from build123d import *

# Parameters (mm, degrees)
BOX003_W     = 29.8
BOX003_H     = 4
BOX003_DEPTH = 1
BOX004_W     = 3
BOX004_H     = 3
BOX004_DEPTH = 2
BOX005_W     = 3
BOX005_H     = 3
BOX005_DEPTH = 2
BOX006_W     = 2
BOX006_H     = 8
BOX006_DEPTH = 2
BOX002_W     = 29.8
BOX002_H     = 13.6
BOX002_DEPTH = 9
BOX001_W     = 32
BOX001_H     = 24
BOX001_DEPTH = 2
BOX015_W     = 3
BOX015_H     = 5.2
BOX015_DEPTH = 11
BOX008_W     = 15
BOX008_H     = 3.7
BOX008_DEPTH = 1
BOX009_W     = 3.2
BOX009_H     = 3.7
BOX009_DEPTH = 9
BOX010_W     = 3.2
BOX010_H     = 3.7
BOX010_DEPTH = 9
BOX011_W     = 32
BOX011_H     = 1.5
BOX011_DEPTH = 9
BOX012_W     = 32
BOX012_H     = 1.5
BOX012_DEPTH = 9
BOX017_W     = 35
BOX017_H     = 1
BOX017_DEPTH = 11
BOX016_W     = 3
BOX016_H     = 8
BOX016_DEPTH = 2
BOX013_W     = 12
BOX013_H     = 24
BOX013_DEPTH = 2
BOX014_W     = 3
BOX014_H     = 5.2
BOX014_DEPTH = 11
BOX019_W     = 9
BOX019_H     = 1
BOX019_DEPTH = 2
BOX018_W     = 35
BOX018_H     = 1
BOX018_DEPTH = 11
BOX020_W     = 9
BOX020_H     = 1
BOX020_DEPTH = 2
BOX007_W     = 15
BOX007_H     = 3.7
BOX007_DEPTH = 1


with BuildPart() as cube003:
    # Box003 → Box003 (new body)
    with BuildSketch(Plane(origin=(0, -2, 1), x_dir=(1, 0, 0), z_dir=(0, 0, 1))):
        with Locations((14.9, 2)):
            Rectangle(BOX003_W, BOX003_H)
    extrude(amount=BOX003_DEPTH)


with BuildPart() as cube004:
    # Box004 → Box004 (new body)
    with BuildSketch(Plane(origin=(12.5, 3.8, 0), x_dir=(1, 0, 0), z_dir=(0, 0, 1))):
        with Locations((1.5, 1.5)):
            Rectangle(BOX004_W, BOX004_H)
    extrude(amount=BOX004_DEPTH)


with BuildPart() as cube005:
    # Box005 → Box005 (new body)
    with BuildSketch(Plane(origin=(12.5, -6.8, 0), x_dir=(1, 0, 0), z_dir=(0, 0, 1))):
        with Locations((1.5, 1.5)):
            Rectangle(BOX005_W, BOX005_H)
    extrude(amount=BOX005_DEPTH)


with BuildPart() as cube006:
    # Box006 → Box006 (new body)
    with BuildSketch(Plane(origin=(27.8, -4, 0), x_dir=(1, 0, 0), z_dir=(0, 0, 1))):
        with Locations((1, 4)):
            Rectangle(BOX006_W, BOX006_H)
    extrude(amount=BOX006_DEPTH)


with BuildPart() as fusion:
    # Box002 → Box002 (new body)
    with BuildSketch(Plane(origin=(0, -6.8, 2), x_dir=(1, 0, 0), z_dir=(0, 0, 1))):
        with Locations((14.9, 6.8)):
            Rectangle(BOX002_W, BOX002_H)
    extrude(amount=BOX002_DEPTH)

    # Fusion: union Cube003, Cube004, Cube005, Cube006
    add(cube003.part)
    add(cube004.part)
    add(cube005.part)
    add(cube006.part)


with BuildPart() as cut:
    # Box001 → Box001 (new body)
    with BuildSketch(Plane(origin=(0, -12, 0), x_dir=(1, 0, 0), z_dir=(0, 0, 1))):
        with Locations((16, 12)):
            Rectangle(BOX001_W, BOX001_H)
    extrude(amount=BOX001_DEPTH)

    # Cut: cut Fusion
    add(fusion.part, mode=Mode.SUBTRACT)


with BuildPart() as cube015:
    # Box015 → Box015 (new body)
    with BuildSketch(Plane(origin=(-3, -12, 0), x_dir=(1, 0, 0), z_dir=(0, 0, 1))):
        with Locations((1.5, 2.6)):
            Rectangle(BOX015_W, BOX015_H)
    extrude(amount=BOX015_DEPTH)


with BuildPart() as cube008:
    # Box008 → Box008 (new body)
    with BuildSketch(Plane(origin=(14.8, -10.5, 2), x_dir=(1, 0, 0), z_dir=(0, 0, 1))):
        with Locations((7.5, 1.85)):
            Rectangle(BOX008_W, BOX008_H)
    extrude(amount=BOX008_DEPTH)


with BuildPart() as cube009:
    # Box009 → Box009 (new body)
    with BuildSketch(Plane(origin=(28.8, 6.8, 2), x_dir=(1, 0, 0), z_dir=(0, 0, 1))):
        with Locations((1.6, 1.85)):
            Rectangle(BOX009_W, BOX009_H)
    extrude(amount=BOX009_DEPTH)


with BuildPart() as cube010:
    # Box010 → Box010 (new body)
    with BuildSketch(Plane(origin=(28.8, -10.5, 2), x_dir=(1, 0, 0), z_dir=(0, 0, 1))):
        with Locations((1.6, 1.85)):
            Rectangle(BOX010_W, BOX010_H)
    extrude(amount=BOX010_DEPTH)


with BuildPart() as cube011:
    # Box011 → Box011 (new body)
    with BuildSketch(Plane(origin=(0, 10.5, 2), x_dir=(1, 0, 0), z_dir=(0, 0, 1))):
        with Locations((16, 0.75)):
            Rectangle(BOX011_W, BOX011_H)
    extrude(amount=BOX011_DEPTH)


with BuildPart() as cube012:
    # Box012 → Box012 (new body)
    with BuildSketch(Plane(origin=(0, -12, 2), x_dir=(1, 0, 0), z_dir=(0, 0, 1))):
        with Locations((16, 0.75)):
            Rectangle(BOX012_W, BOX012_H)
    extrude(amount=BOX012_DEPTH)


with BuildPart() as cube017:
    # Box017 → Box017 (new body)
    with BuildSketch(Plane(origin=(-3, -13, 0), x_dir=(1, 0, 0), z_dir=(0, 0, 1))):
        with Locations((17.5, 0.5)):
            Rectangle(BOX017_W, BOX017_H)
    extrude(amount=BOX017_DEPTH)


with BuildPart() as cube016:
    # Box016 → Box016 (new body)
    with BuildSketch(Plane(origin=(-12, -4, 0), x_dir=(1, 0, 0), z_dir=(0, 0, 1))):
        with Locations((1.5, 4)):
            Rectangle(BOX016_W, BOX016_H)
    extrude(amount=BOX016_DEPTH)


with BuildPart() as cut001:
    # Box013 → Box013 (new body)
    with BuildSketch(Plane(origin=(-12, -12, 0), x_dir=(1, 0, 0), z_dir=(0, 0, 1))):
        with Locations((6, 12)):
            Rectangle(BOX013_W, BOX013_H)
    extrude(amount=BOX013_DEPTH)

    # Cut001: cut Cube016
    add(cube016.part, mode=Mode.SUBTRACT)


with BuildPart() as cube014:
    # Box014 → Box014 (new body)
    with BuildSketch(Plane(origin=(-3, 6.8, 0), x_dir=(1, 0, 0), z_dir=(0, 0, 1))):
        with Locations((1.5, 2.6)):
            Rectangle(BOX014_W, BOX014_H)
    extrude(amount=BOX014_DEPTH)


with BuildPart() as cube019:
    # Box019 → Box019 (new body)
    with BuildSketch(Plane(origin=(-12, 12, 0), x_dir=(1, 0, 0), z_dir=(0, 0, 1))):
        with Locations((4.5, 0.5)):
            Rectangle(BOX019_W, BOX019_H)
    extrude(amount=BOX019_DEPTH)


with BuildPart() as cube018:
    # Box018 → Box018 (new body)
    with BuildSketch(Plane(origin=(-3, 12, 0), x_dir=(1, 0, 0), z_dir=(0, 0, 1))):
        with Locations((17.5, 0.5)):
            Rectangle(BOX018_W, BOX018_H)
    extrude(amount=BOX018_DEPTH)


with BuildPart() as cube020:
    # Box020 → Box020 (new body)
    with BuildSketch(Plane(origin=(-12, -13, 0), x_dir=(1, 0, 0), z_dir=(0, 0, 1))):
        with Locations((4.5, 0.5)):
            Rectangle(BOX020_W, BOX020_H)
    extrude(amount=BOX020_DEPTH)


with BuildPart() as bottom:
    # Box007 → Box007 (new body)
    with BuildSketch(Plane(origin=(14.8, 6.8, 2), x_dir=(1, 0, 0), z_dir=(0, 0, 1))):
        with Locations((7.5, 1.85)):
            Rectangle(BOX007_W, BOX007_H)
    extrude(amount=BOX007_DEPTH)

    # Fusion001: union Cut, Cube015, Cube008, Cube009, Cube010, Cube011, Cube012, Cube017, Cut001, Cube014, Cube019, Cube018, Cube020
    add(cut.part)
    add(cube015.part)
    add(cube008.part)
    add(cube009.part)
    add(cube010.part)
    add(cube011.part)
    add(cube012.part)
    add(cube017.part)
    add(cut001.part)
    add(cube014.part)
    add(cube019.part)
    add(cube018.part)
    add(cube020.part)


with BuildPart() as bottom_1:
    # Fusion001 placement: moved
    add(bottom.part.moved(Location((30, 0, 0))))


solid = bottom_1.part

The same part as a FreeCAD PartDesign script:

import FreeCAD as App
import Part
import Sketcher

V = App.Vector

doc = App.newDocument("Part")
body = doc.addObject("PartDesign::Body", "Body")

sketch1 = doc.addObject("Sketcher::SketchObject", "Sketch")
body.addObject(sketch1)
sketch1.AttachmentSupport = (doc.XY_Plane, [""])
sketch1.MapMode = "FlatFace"
sketch1.AttachmentOffset = App.Placement(V(0, 0, 1), App.Rotation())
sketch1.addGeometry([
    Part.LineSegment(V(0, 2, 0), V(0, -2, 0)),
    Part.LineSegment(V(0, -2, 0), V(29.8, -2, 0)),
    Part.LineSegment(V(29.8, -2, 0), V(29.8, 2, 0)),
    Part.LineSegment(V(29.8, 2, 0), V(0, 2, 0)),
], False)
sketch1.addConstraint([
    Sketcher.Constraint("Coincident", 0, 2, 1, 1),
    Sketcher.Constraint("Coincident", 1, 2, 2, 1),
    Sketcher.Constraint("Coincident", 2, 2, 3, 1),
    Sketcher.Constraint("Coincident", 3, 2, 0, 1),
    Sketcher.Constraint("Vertical", 0),
    Sketcher.Constraint("Horizontal", 1),
    Sketcher.Constraint("Vertical", 2),
    Sketcher.Constraint("Horizontal", 3),
    Sketcher.Constraint("Symmetric", 0, 2, 3, 2, -1, 1),
    Sketcher.Constraint("DistanceY", 0, 2, 0, 1, 4.0),
    Sketcher.Constraint("DistanceX", 1, 1, 1, 2, 29.8),
])
pad1 = doc.addObject("PartDesign::Pad", "Pad")
body.addObject(pad1)
pad1.Profile = sketch1
pad1.Length = 1
body2 = doc.addObject("PartDesign::Body", "Body001")

sketch2 = doc.addObject("Sketcher::SketchObject", "Sketch001")
body2.addObject(sketch2)
sketch2.AttachmentSupport = (doc.getObject("XY_Plane001"), [""])
sketch2.MapMode = "FlatFace"
sketch2.addGeometry([
    Part.LineSegment(V(12.5, 6.8, 0), V(12.5, 3.8, 0)),
    Part.LineSegment(V(12.5, 3.8, 0), V(15.5, 3.8, 0)),
    Part.LineSegment(V(15.5, 3.8, 0), V(15.5, 6.8, 0)),
    Part.LineSegment(V(15.5, 6.8, 0), V(12.5, 6.8, 0)),
], False)
sketch2.addConstraint([
    Sketcher.Constraint("Coincident", 0, 2, 1, 1),
    Sketcher.Constraint("Coincident", 1, 2, 2, 1),
    Sketcher.Constraint("Coincident", 2, 2, 3, 1),
    Sketcher.Constraint("Coincident", 3, 2, 0, 1),
    Sketcher.Constraint("Vertical", 0),
    Sketcher.Constraint("Horizontal", 1),
    Sketcher.Constraint("Vertical", 2),
    Sketcher.Constraint("Horizontal", 3),
    Sketcher.Constraint("Equal", 3, 0),
    Sketcher.Constraint("DistanceX", 1, 1, 1, 2, 3.0),
    Sketcher.Constraint("DistanceX", -1, 1, 0, 2, 12.5),
    Sketcher.Constraint("DistanceY", -1, 1, 0, 2, 3.8),
])
pad2 = doc.addObject("PartDesign::Pad", "Pad001")
body2.addObject(pad2)
pad2.Profile = sketch2
pad2.Length = 2
body3 = doc.addObject("PartDesign::Body", "Body002")

sketch3 = doc.addObject("Sketcher::SketchObject", "Sketch002")
body3.addObject(sketch3)
sketch3.AttachmentSupport = (doc.getObject("XY_Plane002"), [""])
sketch3.MapMode = "FlatFace"
sketch3.addGeometry([
    Part.LineSegment(V(12.5, -3.8, 0), V(12.5, -6.8, 0)),
    Part.LineSegment(V(12.5, -6.8, 0), V(15.5, -6.8, 0)),
    Part.LineSegment(V(15.5, -6.8, 0), V(15.5, -3.8, 0)),
    Part.LineSegment(V(15.5, -3.8, 0), V(12.5, -3.8, 0)),
], False)
sketch3.addConstraint([
    Sketcher.Constraint("Coincident", 0, 2, 1, 1),
    Sketcher.Constraint("Coincident", 1, 2, 2, 1),
    Sketcher.Constraint("Coincident", 2, 2, 3, 1),
    Sketcher.Constraint("Coincident", 3, 2, 0, 1),
    Sketcher.Constraint("Vertical", 0),
    Sketcher.Constraint("Horizontal", 1),
    Sketcher.Constraint("Vertical", 2),
    Sketcher.Constraint("Horizontal", 3),
    Sketcher.Constraint("Equal", 3, 0),
    Sketcher.Constraint("DistanceX", 1, 1, 1, 2, 3.0),
    Sketcher.Constraint("DistanceX", -1, 1, 0, 2, 12.5),
    Sketcher.Constraint("DistanceY", 0, 2, -1, 1, 6.8),
])
pad3 = doc.addObject("PartDesign::Pad", "Pad002")
body3.addObject(pad3)
pad3.Profile = sketch3
pad3.Length = 2
body4 = doc.addObject("PartDesign::Body", "Body003")

sketch4 = doc.addObject("Sketcher::SketchObject", "Sketch003")
body4.addObject(sketch4)
sketch4.AttachmentSupport = (doc.getObject("XY_Plane003"), [""])
sketch4.MapMode = "FlatFace"
sketch4.addGeometry([
    Part.LineSegment(V(27.8, 4, 0), V(27.8, -4, 0)),
    Part.LineSegment(V(27.8, -4, 0), V(29.8, -4, 0)),
    Part.LineSegment(V(29.8, -4, 0), V(29.8, 4, 0)),
    Part.LineSegment(V(29.8, 4, 0), V(27.8, 4, 0)),
], False)
sketch4.addConstraint([
    Sketcher.Constraint("Coincident", 0, 2, 1, 1),
    Sketcher.Constraint("Coincident", 1, 2, 2, 1),
    Sketcher.Constraint("Coincident", 2, 2, 3, 1),
    Sketcher.Constraint("Coincident", 3, 2, 0, 1),
    Sketcher.Constraint("Vertical", 0),
    Sketcher.Constraint("Horizontal", 1),
    Sketcher.Constraint("Vertical", 2),
    Sketcher.Constraint("Horizontal", 3),
    Sketcher.Constraint("DistanceX", 1, 1, 1, 2, 2.0),
    Sketcher.Constraint("DistanceY", 0, 2, 0, 1, 8.0),
    Sketcher.Constraint("DistanceY", 0, 2, -1, 1, 4.0),
    Sketcher.Constraint("DistanceX", -1, 1, 0, 2, 27.8),
])
pad4 = doc.addObject("PartDesign::Pad", "Pad003")
body4.addObject(pad4)
pad4.Profile = sketch4
pad4.Length = 2
body5 = doc.addObject("PartDesign::Body", "Body004")

sketch5 = doc.addObject("Sketcher::SketchObject", "Sketch004")
body5.addObject(sketch5)
sketch5.AttachmentSupport = (doc.getObject("XY_Plane004"), [""])
sketch5.MapMode = "FlatFace"
sketch5.AttachmentOffset = App.Placement(V(0, 0, 2), App.Rotation())
sketch5.addGeometry([
    Part.LineSegment(V(0, 6.8, 0), V(0, -6.8, 0)),
    Part.LineSegment(V(0, -6.8, 0), V(29.8, -6.8, 0)),
    Part.LineSegment(V(29.8, -6.8, 0), V(29.8, 6.8, 0)),
    Part.LineSegment(V(29.8, 6.8, 0), V(0, 6.8, 0)),
], False)
sketch5.addConstraint([
    Sketcher.Constraint("Coincident", 0, 2, 1, 1),
    Sketcher.Constraint("Coincident", 1, 2, 2, 1),
    Sketcher.Constraint("Coincident", 2, 2, 3, 1),
    Sketcher.Constraint("Coincident", 3, 2, 0, 1),
    Sketcher.Constraint("Vertical", 0),
    Sketcher.Constraint("Horizontal", 1),
    Sketcher.Constraint("Vertical", 2),
    Sketcher.Constraint("Horizontal", 3),
    Sketcher.Constraint("Symmetric", 0, 2, 3, 2, -1, 1),
    Sketcher.Constraint("DistanceX", 1, 1, 1, 2, 29.8),
    Sketcher.Constraint("DistanceY", 0, 2, 0, 1, 13.6),
])
pad5 = doc.addObject("PartDesign::Pad", "Pad004")
body5.addObject(pad5)
pad5.Profile = sketch5
pad5.Length = 9
doc.recompute()

boolean = doc.addObject("PartDesign::Boolean", "Boolean")
body5.addObject(boolean)
boolean.Type = "Fuse"
boolean.addObjects([body])
doc.recompute()

boolean2 = doc.addObject("PartDesign::Boolean", "Boolean001")
body5.addObject(boolean2)
boolean2.Type = "Fuse"
boolean2.addObjects([body2])
doc.recompute()

boolean3 = doc.addObject("PartDesign::Boolean", "Boolean002")
body5.addObject(boolean3)
boolean3.Type = "Fuse"
boolean3.addObjects([body3])
doc.recompute()

boolean4 = doc.addObject("PartDesign::Boolean", "Boolean003")
body5.addObject(boolean4)
boolean4.Type = "Fuse"
boolean4.addObjects([body4])
body6 = doc.addObject("PartDesign::Body", "Body005")

sketch6 = doc.addObject("Sketcher::SketchObject", "Sketch005")
body6.addObject(sketch6)
sketch6.AttachmentSupport = (doc.getObject("XY_Plane005"), [""])
sketch6.MapMode = "FlatFace"
sketch6.addGeometry([
    Part.LineSegment(V(0, 12, 0), V(0, -12, 0)),
    Part.LineSegment(V(0, -12, 0), V(32, -12, 0)),
    Part.LineSegment(V(32, -12, 0), V(32, 12, 0)),
    Part.LineSegment(V(32, 12, 0), V(0, 12, 0)),
], False)
sketch6.addConstraint([
    Sketcher.Constraint("Coincident", 0, 2, 1, 1),
    Sketcher.Constraint("Coincident", 1, 2, 2, 1),
    Sketcher.Constraint("Coincident", 2, 2, 3, 1),
    Sketcher.Constraint("Coincident", 3, 2, 0, 1),
    Sketcher.Constraint("Vertical", 0),
    Sketcher.Constraint("Horizontal", 1),
    Sketcher.Constraint("Vertical", 2),
    Sketcher.Constraint("Horizontal", 3),
    Sketcher.Constraint("Symmetric", 0, 2, 3, 2, -1, 1),
    Sketcher.Constraint("DistanceX", 1, 1, 1, 2, 32.0),
    Sketcher.Constraint("DistanceY", 0, 2, 0, 1, 24.0),
])
pad6 = doc.addObject("PartDesign::Pad", "Pad005")
body6.addObject(pad6)
pad6.Profile = sketch6
pad6.Length = 2
doc.recompute()

boolean5 = doc.addObject("PartDesign::Boolean", "Boolean004")
body6.addObject(boolean5)
boolean5.Type = "Cut"
boolean5.addObjects([body5])
body7 = doc.addObject("PartDesign::Body", "Body006")

sketch7 = doc.addObject("Sketcher::SketchObject", "Sketch006")
body7.addObject(sketch7)
sketch7.AttachmentSupport = (doc.getObject("XY_Plane006"), [""])
sketch7.MapMode = "FlatFace"
sketch7.addGeometry([
    Part.LineSegment(V(-3, -6.8, 0), V(-3, -12, 0)),
    Part.LineSegment(V(-3, -12, 0), V(0, -12, 0)),
    Part.LineSegment(V(0, -12, 0), V(0, -6.8, 0)),
    Part.LineSegment(V(0, -6.8, 0), V(-3, -6.8, 0)),
], False)
sketch7.addConstraint([
    Sketcher.Constraint("Coincident", 0, 2, 1, 1),
    Sketcher.Constraint("Coincident", 1, 2, 2, 1),
    Sketcher.Constraint("Coincident", 2, 2, 3, 1),
    Sketcher.Constraint("Coincident", 3, 2, 0, 1),
    Sketcher.Constraint("Vertical", 0),
    Sketcher.Constraint("Horizontal", 1),
    Sketcher.Constraint("Vertical", 2),
    Sketcher.Constraint("Horizontal", 3),
    Sketcher.Constraint("PointOnObject", 1, 2, -2),
    Sketcher.Constraint("DistanceX", 1, 1, 1, 2, 3.0),
    Sketcher.Constraint("DistanceY", 0, 2, 0, 1, 5.2),
    Sketcher.Constraint("DistanceY", 0, 2, -1, 1, 12.0),
])
pad7 = doc.addObject("PartDesign::Pad", "Pad006")
body7.addObject(pad7)
pad7.Profile = sketch7
pad7.Length = 11
body8 = doc.addObject("PartDesign::Body", "Body007")

sketch8 = doc.addObject("Sketcher::SketchObject", "Sketch007")
body8.addObject(sketch8)
sketch8.AttachmentSupport = (doc.getObject("XY_Plane007"), [""])
sketch8.MapMode = "FlatFace"
sketch8.AttachmentOffset = App.Placement(V(0, 0, 2), App.Rotation())
sketch8.addGeometry([
    Part.LineSegment(V(14.8, -6.8, 0), V(14.8, -10.5, 0)),
    Part.LineSegment(V(14.8, -10.5, 0), V(29.8, -10.5, 0)),
    Part.LineSegment(V(29.8, -10.5, 0), V(29.8, -6.8, 0)),
    Part.LineSegment(V(29.8, -6.8, 0), V(14.8, -6.8, 0)),
], False)
sketch8.addConstraint([
    Sketcher.Constraint("Coincident", 0, 2, 1, 1),
    Sketcher.Constraint("Coincident", 1, 2, 2, 1),
    Sketcher.Constraint("Coincident", 2, 2, 3, 1),
    Sketcher.Constraint("Coincident", 3, 2, 0, 1),
    Sketcher.Constraint("Vertical", 0),
    Sketcher.Constraint("Horizontal", 1),
    Sketcher.Constraint("Vertical", 2),
    Sketcher.Constraint("Horizontal", 3),
    Sketcher.Constraint("DistanceX", 1, 1, 1, 2, 15.0),
    Sketcher.Constraint("DistanceY", 0, 2, 0, 1, 3.7),
    Sketcher.Constraint("DistanceX", -1, 1, 0, 2, 14.8),
    Sketcher.Constraint("DistanceY", 0, 2, -1, 1, 10.5),
])
pad8 = doc.addObject("PartDesign::Pad", "Pad007")
body8.addObject(pad8)
pad8.Profile = sketch8
pad8.Length = 1
body9 = doc.addObject("PartDesign::Body", "Body008")

sketch9 = doc.addObject("Sketcher::SketchObject", "Sketch008")
body9.addObject(sketch9)
sketch9.AttachmentSupport = (doc.getObject("XY_Plane008"), [""])
sketch9.MapMode = "FlatFace"
sketch9.AttachmentOffset = App.Placement(V(0, 0, 2), App.Rotation())
sketch9.addGeometry([
    Part.LineSegment(V(28.8, 10.5, 0), V(28.8, 6.8, 0)),
    Part.LineSegment(V(28.8, 6.8, 0), V(32, 6.8, 0)),
    Part.LineSegment(V(32, 6.8, 0), V(32, 10.5, 0)),
    Part.LineSegment(V(32, 10.5, 0), V(28.8, 10.5, 0)),
], False)
sketch9.addConstraint([
    Sketcher.Constraint("Coincident", 0, 2, 1, 1),
    Sketcher.Constraint("Coincident", 1, 2, 2, 1),
    Sketcher.Constraint("Coincident", 2, 2, 3, 1),
    Sketcher.Constraint("Coincident", 3, 2, 0, 1),
    Sketcher.Constraint("Vertical", 0),
    Sketcher.Constraint("Horizontal", 1),
    Sketcher.Constraint("Vertical", 2),
    Sketcher.Constraint("Horizontal", 3),
    Sketcher.Constraint("DistanceX", 1, 1, 1, 2, 3.2),
    Sketcher.Constraint("DistanceY", 0, 2, 0, 1, 3.7),
    Sketcher.Constraint("DistanceX", -1, 1, 1, 2, 32.0),
    Sketcher.Constraint("DistanceY", -1, 1, 0, 2, 6.8),
])
pad9 = doc.addObject("PartDesign::Pad", "Pad008")
body9.addObject(pad9)
pad9.Profile = sketch9
pad9.Length = 9
body10 = doc.addObject("PartDesign::Body", "Body009")

sketch10 = doc.addObject("Sketcher::SketchObject", "Sketch009")
body10.addObject(sketch10)
sketch10.AttachmentSupport = (doc.getObject("XY_Plane009"), [""])
sketch10.MapMode = "FlatFace"
sketch10.AttachmentOffset = App.Placement(V(0, 0, 2), App.Rotation())
sketch10.addGeometry([
    Part.LineSegment(V(28.8, -6.8, 0), V(28.8, -10.5, 0)),
    Part.LineSegment(V(28.8, -10.5, 0), V(32, -10.5, 0)),
    Part.LineSegment(V(32, -10.5, 0), V(32, -6.8, 0)),
    Part.LineSegment(V(32, -6.8, 0), V(28.8, -6.8, 0)),
], False)
sketch10.addConstraint([
    Sketcher.Constraint("Coincident", 0, 2, 1, 1),
    Sketcher.Constraint("Coincident", 1, 2, 2, 1),
    Sketcher.Constraint("Coincident", 2, 2, 3, 1),
    Sketcher.Constraint("Coincident", 3, 2, 0, 1),
    Sketcher.Constraint("Vertical", 0),
    Sketcher.Constraint("Horizontal", 1),
    Sketcher.Constraint("Vertical", 2),
    Sketcher.Constraint("Horizontal", 3),
    Sketcher.Constraint("DistanceX", 1, 1, 1, 2, 3.2),
    Sketcher.Constraint("DistanceY", 0, 2, 0, 1, 3.7),
    Sketcher.Constraint("DistanceX", -1, 1, 1, 2, 32.0),
    Sketcher.Constraint("DistanceY", 0, 2, -1, 1, 10.5),
])
pad10 = doc.addObject("PartDesign::Pad", "Pad009")
body10.addObject(pad10)
pad10.Profile = sketch10
pad10.Length = 9
body11 = doc.addObject("PartDesign::Body", "Body010")

sketch11 = doc.addObject("Sketcher::SketchObject", "Sketch010")
body11.addObject(sketch11)
sketch11.AttachmentSupport = (doc.getObject("XY_Plane010"), [""])
sketch11.MapMode = "FlatFace"
sketch11.AttachmentOffset = App.Placement(V(0, 0, 2), App.Rotation())
sketch11.addGeometry([
    Part.LineSegment(V(0, 12, 0), V(0, 10.5, 0)),
    Part.LineSegment(V(0, 10.5, 0), V(32, 10.5, 0)),
    Part.LineSegment(V(32, 10.5, 0), V(32, 12, 0)),
    Part.LineSegment(V(32, 12, 0), V(0, 12, 0)),
], False)
sketch11.addConstraint([
    Sketcher.Constraint("Coincident", 0, 2, 1, 1),
    Sketcher.Constraint("Coincident", 1, 2, 2, 1),
    Sketcher.Constraint("Coincident", 2, 2, 3, 1),
    Sketcher.Constraint("Coincident", 3, 2, 0, 1),
    Sketcher.Constraint("Vertical", 0),
    Sketcher.Constraint("Horizontal", 1),
    Sketcher.Constraint("Vertical", 2),
    Sketcher.Constraint("Horizontal", 3),
    Sketcher.Constraint("PointOnObject", 0, 2, -2),
    Sketcher.Constraint("DistanceX", 1, 1, 1, 2, 32.0),
    Sketcher.Constraint("DistanceY", 0, 2, 0, 1, 1.5),
    Sketcher.Constraint("DistanceY", -1, 1, 2, 2, 12.0),
])
pad11 = doc.addObject("PartDesign::Pad", "Pad010")
body11.addObject(pad11)
pad11.Profile = sketch11
pad11.Length = 9
body12 = doc.addObject("PartDesign::Body", "Body011")

sketch12 = doc.addObject("Sketcher::SketchObject", "Sketch011")
body12.addObject(sketch12)
sketch12.AttachmentSupport = (doc.getObject("XY_Plane011"), [""])
sketch12.MapMode = "FlatFace"
sketch12.AttachmentOffset = App.Placement(V(0, 0, 2), App.Rotation())
sketch12.addGeometry([
    Part.LineSegment(V(0, -10.5, 0), V(0, -12, 0)),
    Part.LineSegment(V(0, -12, 0), V(32, -12, 0)),
    Part.LineSegment(V(32, -12, 0), V(32, -10.5, 0)),
    Part.LineSegment(V(32, -10.5, 0), V(0, -10.5, 0)),
], False)
sketch12.addConstraint([
    Sketcher.Constraint("Coincident", 0, 2, 1, 1),
    Sketcher.Constraint("Coincident", 1, 2, 2, 1),
    Sketcher.Constraint("Coincident", 2, 2, 3, 1),
    Sketcher.Constraint("Coincident", 3, 2, 0, 1),
    Sketcher.Constraint("Vertical", 0),
    Sketcher.Constraint("Horizontal", 1),
    Sketcher.Constraint("Vertical", 2),
    Sketcher.Constraint("Horizontal", 3),
    Sketcher.Constraint("PointOnObject", 0, 2, -2),
    Sketcher.Constraint("DistanceX", 1, 1, 1, 2, 32.0),
    Sketcher.Constraint("DistanceY", 0, 2, 0, 1, 1.5),
    Sketcher.Constraint("DistanceY", 0, 2, -1, 1, 12.0),
])
pad12 = doc.addObject("PartDesign::Pad", "Pad011")
body12.addObject(pad12)
pad12.Profile = sketch12
pad12.Length = 9
body13 = doc.addObject("PartDesign::Body", "Body012")

sketch13 = doc.addObject("Sketcher::SketchObject", "Sketch012")
body13.addObject(sketch13)
sketch13.AttachmentSupport = (doc.getObject("XY_Plane012"), [""])
sketch13.MapMode = "FlatFace"
sketch13.addGeometry([
    Part.LineSegment(V(-3, -12, 0), V(-3, -13, 0)),
    Part.LineSegment(V(-3, -13, 0), V(32, -13, 0)),
    Part.LineSegment(V(32, -13, 0), V(32, -12, 0)),
    Part.LineSegment(V(32, -12, 0), V(-3, -12, 0)),
], False)
sketch13.addConstraint([
    Sketcher.Constraint("Coincident", 0, 2, 1, 1),
    Sketcher.Constraint("Coincident", 1, 2, 2, 1),
    Sketcher.Constraint("Coincident", 2, 2, 3, 1),
    Sketcher.Constraint("Coincident", 3, 2, 0, 1),
    Sketcher.Constraint("Vertical", 0),
    Sketcher.Constraint("Horizontal", 1),
    Sketcher.Constraint("Vertical", 2),
    Sketcher.Constraint("Horizontal", 3),
    Sketcher.Constraint("DistanceX", 1, 1, 1, 2, 35.0),
    Sketcher.Constraint("DistanceY", 0, 2, 0, 1, 1.0),
    Sketcher.Constraint("DistanceX", 0, 2, -1, 1, 3.0),
    Sketcher.Constraint("DistanceY", 0, 2, -1, 1, 13.0),
])
pad13 = doc.addObject("PartDesign::Pad", "Pad012")
body13.addObject(pad13)
pad13.Profile = sketch13
pad13.Length = 11
body14 = doc.addObject("PartDesign::Body", "Body013")

sketch14 = doc.addObject("Sketcher::SketchObject", "Sketch013")
body14.addObject(sketch14)
sketch14.AttachmentSupport = (doc.getObject("XY_Plane013"), [""])
sketch14.MapMode = "FlatFace"
sketch14.addGeometry([
    Part.LineSegment(V(-12, 4, 0), V(-12, -4, 0)),
    Part.LineSegment(V(-12, -4, 0), V(-9, -4, 0)),
    Part.LineSegment(V(-9, -4, 0), V(-9, 4, 0)),
    Part.LineSegment(V(-9, 4, 0), V(-12, 4, 0)),
], False)
sketch14.addConstraint([
    Sketcher.Constraint("Coincident", 0, 2, 1, 1),
    Sketcher.Constraint("Coincident", 1, 2, 2, 1),
    Sketcher.Constraint("Coincident", 2, 2, 3, 1),
    Sketcher.Constraint("Coincident", 3, 2, 0, 1),
    Sketcher.Constraint("Vertical", 0),
    Sketcher.Constraint("Horizontal", 1),
    Sketcher.Constraint("Vertical", 2),
    Sketcher.Constraint("Horizontal", 3),
    Sketcher.Constraint("DistanceX", 1, 1, 1, 2, 3.0),
    Sketcher.Constraint("DistanceY", 0, 2, 0, 1, 8.0),
    Sketcher.Constraint("DistanceX", 0, 2, -1, 1, 12.0),
    Sketcher.Constraint("DistanceY", 0, 2, -1, 1, 4.0),
])
pad14 = doc.addObject("PartDesign::Pad", "Pad013")
body14.addObject(pad14)
pad14.Profile = sketch14
pad14.Length = 2
body15 = doc.addObject("PartDesign::Body", "Body014")

sketch15 = doc.addObject("Sketcher::SketchObject", "Sketch014")
body15.addObject(sketch15)
sketch15.AttachmentSupport = (doc.getObject("XY_Plane014"), [""])
sketch15.MapMode = "FlatFace"
sketch15.addGeometry([
    Part.LineSegment(V(-12, 12, 0), V(-12, -12, 0)),
    Part.LineSegment(V(-12, -12, 0), V(0, -12, 0)),
    Part.LineSegment(V(0, -12, 0), V(0, 12, 0)),
    Part.LineSegment(V(0, 12, 0), V(-12, 12, 0)),
], False)
sketch15.addConstraint([
    Sketcher.Constraint("Coincident", 0, 2, 1, 1),
    Sketcher.Constraint("Coincident", 1, 2, 2, 1),
    Sketcher.Constraint("Coincident", 2, 2, 3, 1),
    Sketcher.Constraint("Coincident", 3, 2, 0, 1),
    Sketcher.Constraint("Vertical", 0),
    Sketcher.Constraint("Horizontal", 1),
    Sketcher.Constraint("Vertical", 2),
    Sketcher.Constraint("Horizontal", 3),
    Sketcher.Constraint("Symmetric", 1, 2, 2, 2, -1, 1),
    Sketcher.Constraint("DistanceX", 1, 1, 1, 2, 12.0),
    Sketcher.Constraint("DistanceY", 0, 2, 0, 1, 24.0),
])
pad15 = doc.addObject("PartDesign::Pad", "Pad014")
body15.addObject(pad15)
pad15.Profile = sketch15
pad15.Length = 2
doc.recompute()

boolean6 = doc.addObject("PartDesign::Boolean", "Boolean005")
body15.addObject(boolean6)
boolean6.Type = "Cut"
boolean6.addObjects([body14])
body16 = doc.addObject("PartDesign::Body", "Body015")

sketch16 = doc.addObject("Sketcher::SketchObject", "Sketch015")
body16.addObject(sketch16)
sketch16.AttachmentSupport = (doc.getObject("XY_Plane015"), [""])
sketch16.MapMode = "FlatFace"
sketch16.addGeometry([
    Part.LineSegment(V(-3, 12, 0), V(-3, 6.8, 0)),
    Part.LineSegment(V(-3, 6.8, 0), V(0, 6.8, 0)),
    Part.LineSegment(V(0, 6.8, 0), V(0, 12, 0)),
    Part.LineSegment(V(0, 12, 0), V(-3, 12, 0)),
], False)
sketch16.addConstraint([
    Sketcher.Constraint("Coincident", 0, 2, 1, 1),
    Sketcher.Constraint("Coincident", 1, 2, 2, 1),
    Sketcher.Constraint("Coincident", 2, 2, 3, 1),
    Sketcher.Constraint("Coincident", 3, 2, 0, 1),
    Sketcher.Constraint("Vertical", 0),
    Sketcher.Constraint("Horizontal", 1),
    Sketcher.Constraint("Vertical", 2),
    Sketcher.Constraint("Horizontal", 3),
    Sketcher.Constraint("PointOnObject", 1, 2, -2),
    Sketcher.Constraint("DistanceX", 1, 1, 1, 2, 3.0),
    Sketcher.Constraint("DistanceY", 0, 2, 0, 1, 5.2),
    Sketcher.Constraint("DistanceY", -1, 1, 2, 2, 12.0),
])
pad16 = doc.addObject("PartDesign::Pad", "Pad015")
body16.addObject(pad16)
pad16.Profile = sketch16
pad16.Length = 11
body17 = doc.addObject("PartDesign::Body", "Body016")

sketch17 = doc.addObject("Sketcher::SketchObject", "Sketch016")
body17.addObject(sketch17)
sketch17.AttachmentSupport = (doc.getObject("XY_Plane016"), [""])
sketch17.MapMode = "FlatFace"
sketch17.addGeometry([
    Part.LineSegment(V(-12, 13, 0), V(-12, 12, 0)),
    Part.LineSegment(V(-12, 12, 0), V(-3, 12, 0)),
    Part.LineSegment(V(-3, 12, 0), V(-3, 13, 0)),
    Part.LineSegment(V(-3, 13, 0), V(-12, 13, 0)),
], False)
sketch17.addConstraint([
    Sketcher.Constraint("Coincident", 0, 2, 1, 1),
    Sketcher.Constraint("Coincident", 1, 2, 2, 1),
    Sketcher.Constraint("Coincident", 2, 2, 3, 1),
    Sketcher.Constraint("Coincident", 3, 2, 0, 1),
    Sketcher.Constraint("Vertical", 0),
    Sketcher.Constraint("Horizontal", 1),
    Sketcher.Constraint("Vertical", 2),
    Sketcher.Constraint("Horizontal", 3),
    Sketcher.Constraint("DistanceX", 1, 1, 1, 2, 9.0),
    Sketcher.Constraint("DistanceY", 0, 2, 0, 1, 1.0),
    Sketcher.Constraint("DistanceX", 0, 2, -1, 1, 12.0),
    Sketcher.Constraint("DistanceY", -1, 1, 0, 2, 12.0),
])
pad17 = doc.addObject("PartDesign::Pad", "Pad016")
body17.addObject(pad17)
pad17.Profile = sketch17
pad17.Length = 2
body18 = doc.addObject("PartDesign::Body", "Body017")

sketch18 = doc.addObject("Sketcher::SketchObject", "Sketch017")
body18.addObject(sketch18)
sketch18.AttachmentSupport = (doc.getObject("XY_Plane017"), [""])
sketch18.MapMode = "FlatFace"
sketch18.addGeometry([
    Part.LineSegment(V(-3, 13, 0), V(-3, 12, 0)),
    Part.LineSegment(V(-3, 12, 0), V(32, 12, 0)),
    Part.LineSegment(V(32, 12, 0), V(32, 13, 0)),
    Part.LineSegment(V(32, 13, 0), V(-3, 13, 0)),
], False)
sketch18.addConstraint([
    Sketcher.Constraint("Coincident", 0, 2, 1, 1),
    Sketcher.Constraint("Coincident", 1, 2, 2, 1),
    Sketcher.Constraint("Coincident", 2, 2, 3, 1),
    Sketcher.Constraint("Coincident", 3, 2, 0, 1),
    Sketcher.Constraint("Vertical", 0),
    Sketcher.Constraint("Horizontal", 1),
    Sketcher.Constraint("Vertical", 2),
    Sketcher.Constraint("Horizontal", 3),
    Sketcher.Constraint("DistanceX", 1, 1, 1, 2, 35.0),
    Sketcher.Constraint("DistanceY", 0, 2, 0, 1, 1.0),
    Sketcher.Constraint("DistanceX", 0, 2, -1, 1, 3.0),
    Sketcher.Constraint("DistanceY", -1, 1, 0, 2, 12.0),
])
pad18 = doc.addObject("PartDesign::Pad", "Pad017")
body18.addObject(pad18)
pad18.Profile = sketch18
pad18.Length = 11
body19 = doc.addObject("PartDesign::Body", "Body018")

sketch19 = doc.addObject("Sketcher::SketchObject", "Sketch018")
body19.addObject(sketch19)
sketch19.AttachmentSupport = (doc.getObject("XY_Plane018"), [""])
sketch19.MapMode = "FlatFace"
sketch19.addGeometry([
    Part.LineSegment(V(-12, -12, 0), V(-12, -13, 0)),
    Part.LineSegment(V(-12, -13, 0), V(-3, -13, 0)),
    Part.LineSegment(V(-3, -13, 0), V(-3, -12, 0)),
    Part.LineSegment(V(-3, -12, 0), V(-12, -12, 0)),
], False)
sketch19.addConstraint([
    Sketcher.Constraint("Coincident", 0, 2, 1, 1),
    Sketcher.Constraint("Coincident", 1, 2, 2, 1),
    Sketcher.Constraint("Coincident", 2, 2, 3, 1),
    Sketcher.Constraint("Coincident", 3, 2, 0, 1),
    Sketcher.Constraint("Vertical", 0),
    Sketcher.Constraint("Horizontal", 1),
    Sketcher.Constraint("Vertical", 2),
    Sketcher.Constraint("Horizontal", 3),
    Sketcher.Constraint("DistanceX", 1, 1, 1, 2, 9.0),
    Sketcher.Constraint("DistanceY", 0, 2, 0, 1, 1.0),
    Sketcher.Constraint("DistanceX", 0, 2, -1, 1, 12.0),
    Sketcher.Constraint("DistanceY", 0, 2, -1, 1, 13.0),
])
pad19 = doc.addObject("PartDesign::Pad", "Pad018")
body19.addObject(pad19)
pad19.Profile = sketch19
pad19.Length = 2
body20 = doc.addObject("PartDesign::Body", "Body019")

sketch20 = doc.addObject("Sketcher::SketchObject", "Sketch019")
body20.addObject(sketch20)
sketch20.AttachmentSupport = (doc.getObject("XY_Plane019"), [""])
sketch20.MapMode = "FlatFace"
sketch20.AttachmentOffset = App.Placement(V(0, 0, 2), App.Rotation())
sketch20.addGeometry([
    Part.LineSegment(V(14.8, 10.5, 0), V(14.8, 6.8, 0)),
    Part.LineSegment(V(14.8, 6.8, 0), V(29.8, 6.8, 0)),
    Part.LineSegment(V(29.8, 6.8, 0), V(29.8, 10.5, 0)),
    Part.LineSegment(V(29.8, 10.5, 0), V(14.8, 10.5, 0)),
], False)
sketch20.addConstraint([
    Sketcher.Constraint("Coincident", 0, 2, 1, 1),
    Sketcher.Constraint("Coincident", 1, 2, 2, 1),
    Sketcher.Constraint("Coincident", 2, 2, 3, 1),
    Sketcher.Constraint("Coincident", 3, 2, 0, 1),
    Sketcher.Constraint("Vertical", 0),
    Sketcher.Constraint("Horizontal", 1),
    Sketcher.Constraint("Vertical", 2),
    Sketcher.Constraint("Horizontal", 3),
    Sketcher.Constraint("DistanceX", 1, 1, 1, 2, 15.0),
    Sketcher.Constraint("DistanceY", 0, 2, 0, 1, 3.7),
    Sketcher.Constraint("DistanceX", -1, 1, 0, 2, 14.8),
    Sketcher.Constraint("DistanceY", -1, 1, 0, 2, 6.8),
])
pad20 = doc.addObject("PartDesign::Pad", "Pad019")
body20.addObject(pad20)
pad20.Profile = sketch20
pad20.Length = 1
doc.recompute()

boolean7 = doc.addObject("PartDesign::Boolean", "Boolean006")
body20.addObject(boolean7)
boolean7.Type = "Fuse"
boolean7.addObjects([body6])
doc.recompute()

boolean8 = doc.addObject("PartDesign::Boolean", "Boolean007")
body20.addObject(boolean8)
boolean8.Type = "Fuse"
boolean8.addObjects([body7])
doc.recompute()

boolean9 = doc.addObject("PartDesign::Boolean", "Boolean008")
body20.addObject(boolean9)
boolean9.Type = "Fuse"
boolean9.addObjects([body8])
doc.recompute()

boolean10 = doc.addObject("PartDesign::Boolean", "Boolean009")
body20.addObject(boolean10)
boolean10.Type = "Fuse"
boolean10.addObjects([body9])
doc.recompute()

boolean11 = doc.addObject("PartDesign::Boolean", "Boolean010")
body20.addObject(boolean11)
boolean11.Type = "Fuse"
boolean11.addObjects([body10])
doc.recompute()

boolean12 = doc.addObject("PartDesign::Boolean", "Boolean011")
body20.addObject(boolean12)
boolean12.Type = "Fuse"
boolean12.addObjects([body11])
doc.recompute()

boolean13 = doc.addObject("PartDesign::Boolean", "Boolean012")
body20.addObject(boolean13)
boolean13.Type = "Fuse"
boolean13.addObjects([body12])
doc.recompute()

boolean14 = doc.addObject("PartDesign::Boolean", "Boolean013")
body20.addObject(boolean14)
boolean14.Type = "Fuse"
boolean14.addObjects([body13])
doc.recompute()

boolean15 = doc.addObject("PartDesign::Boolean", "Boolean014")
body20.addObject(boolean15)
boolean15.Type = "Fuse"
boolean15.addObjects([body15])
doc.recompute()

boolean16 = doc.addObject("PartDesign::Boolean", "Boolean015")
body20.addObject(boolean16)
boolean16.Type = "Fuse"
boolean16.addObjects([body16])
doc.recompute()

boolean17 = doc.addObject("PartDesign::Boolean", "Boolean016")
body20.addObject(boolean17)
boolean17.Type = "Fuse"
boolean17.addObjects([body17])
doc.recompute()

boolean18 = doc.addObject("PartDesign::Boolean", "Boolean017")
body20.addObject(boolean18)
boolean18.Type = "Fuse"
boolean18.addObjects([body18])
doc.recompute()

boolean19 = doc.addObject("PartDesign::Boolean", "Boolean018")
body20.addObject(boolean19)
boolean19.Type = "Fuse"
boolean19.addObjects([body19])
body21 = doc.addObject("PartDesign::Body", "Body020")
doc.recompute()

body20.Placement = App.Placement(V(30, 0, 0), App.Rotation(V(0, 0, 1), 0))
boolean20 = doc.addObject("PartDesign::Boolean", "Boolean019")
body21.addObject(boolean20)
boolean20.Type = "Fuse"
boolean20.addObjects([body20])

doc.recompute()
